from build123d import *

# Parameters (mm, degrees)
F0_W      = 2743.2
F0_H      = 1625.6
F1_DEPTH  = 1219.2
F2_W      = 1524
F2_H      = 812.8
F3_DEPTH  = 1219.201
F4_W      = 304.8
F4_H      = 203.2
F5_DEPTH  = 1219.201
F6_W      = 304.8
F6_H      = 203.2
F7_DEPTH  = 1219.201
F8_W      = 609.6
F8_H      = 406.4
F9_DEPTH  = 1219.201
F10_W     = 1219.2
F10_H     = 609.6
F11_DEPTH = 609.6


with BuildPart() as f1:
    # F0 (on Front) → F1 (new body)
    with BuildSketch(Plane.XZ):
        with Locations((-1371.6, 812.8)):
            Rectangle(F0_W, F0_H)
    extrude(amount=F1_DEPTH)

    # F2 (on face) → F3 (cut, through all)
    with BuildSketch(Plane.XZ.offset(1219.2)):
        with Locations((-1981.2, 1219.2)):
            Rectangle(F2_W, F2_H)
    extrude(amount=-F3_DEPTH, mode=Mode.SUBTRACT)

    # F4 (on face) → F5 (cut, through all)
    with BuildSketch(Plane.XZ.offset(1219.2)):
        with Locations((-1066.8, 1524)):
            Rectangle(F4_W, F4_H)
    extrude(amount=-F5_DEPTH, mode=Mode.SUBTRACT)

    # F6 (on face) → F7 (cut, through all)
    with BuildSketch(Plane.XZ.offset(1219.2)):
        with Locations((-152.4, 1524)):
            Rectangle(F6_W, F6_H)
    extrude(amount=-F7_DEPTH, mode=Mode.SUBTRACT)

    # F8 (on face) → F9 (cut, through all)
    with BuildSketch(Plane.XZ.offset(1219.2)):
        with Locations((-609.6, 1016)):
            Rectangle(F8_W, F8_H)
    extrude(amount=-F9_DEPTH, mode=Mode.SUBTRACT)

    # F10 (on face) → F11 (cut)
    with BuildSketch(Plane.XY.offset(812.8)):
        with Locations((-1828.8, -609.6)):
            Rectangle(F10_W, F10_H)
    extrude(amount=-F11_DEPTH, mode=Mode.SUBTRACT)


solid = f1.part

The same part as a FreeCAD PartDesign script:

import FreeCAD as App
import Part
import Sketcher
from FreeCAD import Vector
Q = App.Units.Quantity


def add_polygon(sketch, points):
    """Adds a closed chain of lines whose ends are joined by coincident constraints."""
    first, n = sketch.GeometryCount, len(points)
    for a, b in zip(points, points[1:] + points[:1]):
        sketch.addGeometry(Part.LineSegment(App.Vector(*a, 0), App.Vector(*b, 0)), False)
    for i in range(n):
        sketch.addConstraint(Sketcher.Constraint("Coincident", first + i, 2, first + (i + 1) % n, 1))

doc = App.newDocument("Part")
body = doc.addObject("PartDesign::Body", "Body")

# Sketch on XZ plane
sketch1 = doc.addObject("Sketcher::SketchObject", "Sketch")
body.addObject(sketch1)
sketch1.AttachmentSupport = (doc.XZ_Plane, [""])
sketch1.MapMode = "FlatFace"
add_polygon(sketch1, [(-2743, 1626), (-2743, 0), (0, 0), (0, 1626)])  # lines 0-3
sketch1.addConstraint([
    Sketcher.Constraint("Vertical", 0),
    Sketcher.Constraint("Horizontal", 1),
    Sketcher.Constraint("Vertical", 2),
    Sketcher.Constraint("Horizontal", 3),
    Sketcher.Constraint("Coincident", 1, 2, -1, 1),
    Sketcher.Constraint("DistanceX", 1, 1, 1, 2, Q("108 in")),
    Sketcher.Constraint("DistanceY", 0, 2, 0, 1, Q("64 in")),
])
pad1 = doc.addObject("PartDesign::Pad", "Pad")
body.addObject(pad1)
pad1.Profile = sketch1
pad1.Length = Q("48 in")

# Sketch on XZ plane
sketch2 = doc.addObject("Sketcher::SketchObject", "Sketch001")
body.addObject(sketch2)
sketch2.AttachmentSupport = (doc.XZ_Plane, [""])
sketch2.MapMode = "FlatFace"
sketch2.AttachmentOffset = App.Placement(Vector(0, 0, 48 * 25.4), App.Rotation())
add_polygon(sketch2, [(-2743, 1626), (-2743, 813), (-1219, 813), (-1219, 1626)])  # lines 0-3
sketch2.addConstraint([
    Sketcher.Constraint("Vertical", 0),
    Sketcher.Constraint("Horizontal", 1),
    Sketcher.Constraint("Vertical", 2),
    Sketcher.Constraint("Horizontal", 3),
    Sketcher.Constraint("DistanceX", 1, 1, 1, 2, Q("60 in")),
    Sketcher.Constraint("DistanceY", 0, 2, 0, 1, Q("32 in")),
    Sketcher.Constraint("DistanceX", 0, 2, -1, 1, Q("108 in")),
    Sketcher.Constraint("DistanceY", -1, 1, 0, 2, Q("32 in")),
])
pocket1 = doc.addObject("PartDesign::Pocket", "Pocket")
body.addObject(pocket1)
pocket1.Profile = sketch2
pocket1.Type = "ThroughAll"

# Sketch on XZ plane
sketch3 = doc.addObject("Sketcher::SketchObject", "Sketch002")
body.addObject(sketch3)
sketch3.AttachmentSupport = (doc.XZ_Plane, [""])
sketch3.MapMode = "FlatFace"
sketch3.AttachmentOffset = App.Placement(Vector(0, 0, 48 * 25.4), App.Rotation())
add_polygon(sketch3, [(-1219, 1626), (-1219, 1422), (-914, 1422), (-914, 1626)])  # lines 0-3
sketch3.addConstraint([
    Sketcher.Constraint("Vertical", 0),
    Sketcher.Constraint("Horizontal", 1),
    Sketcher.Constraint("Vertical", 2),
    Sketcher.Constraint("Horizontal", 3),
    Sketcher.Constraint("DistanceX", 1, 1, 1, 2, Q("12 in")),
    Sketcher.Constraint("DistanceY", 0, 2, 0, 1, Q("8 in")),
    Sketcher.Constraint("DistanceX", 0, 2, -1, 1, Q("48 in")),
    Sketcher.Constraint("DistanceY", -1, 1, 0, 2, Q("56 in")),
])
pocket2 = doc.addObject("PartDesign::Pocket", "Pocket001")
body.addObject(pocket2)
pocket2.Profile = sketch3
pocket2.Type = "ThroughAll"

# Sketch on XZ plane
sketch4 = doc.addObject("Sketcher::SketchObject", "Sketch003")
body.addObject(sketch4)
sketch4.AttachmentSupport = (doc.XZ_Plane, [""])
sketch4.MapMode = "FlatFace"
sketch4.AttachmentOffset = App.Placement(Vector(0, 0, 48 * 25.4), App.Rotation())
add_polygon(sketch4, [(-305, 1626), (-305, 1422), (0, 1422), (0, 1626)])  # lines 0-3
sketch4.addConstraint([
    Sketcher.Constraint("Vertical", 0),
    Sketcher.Constraint("Horizontal", 1),
    Sketcher.Constraint("Vertical", 2),
    Sketcher.Constraint("Horizontal", 3),
    Sketcher.Constraint("PointOnObject", 1, 2, -2),
    Sketcher.Constraint("DistanceX", 1, 1, 1, 2, Q("12 in")),
    Sketcher.Constraint("DistanceY", 0, 2, 0, 1, Q("8 in")),
    Sketcher.Constraint("DistanceY", -1, 1, 0, 2, Q("56 in")),
])
pocket3 = doc.addObject("PartDesign::Pocket", "Pocket002")
body.addObject(pocket3)
pocket3.Profile = sketch4
pocket3.Type = "ThroughAll"

# Sketch on XZ plane
sketch5 = doc.addObject("Sketcher::SketchObject", "Sketch004")
body.addObject(sketch5)
sketch5.AttachmentSupport = (doc.XZ_Plane, [""])
sketch5.MapMode = "FlatFace"
sketch5.AttachmentOffset = App.Placement(Vector(0, 0, 48 * 25.4), App.Rotation())
add_polygon(sketch5, [(-914, 1219), (-914, 813), (-305, 813), (-305, 1219)])  # lines 0-3
sketch5.addConstraint([
    Sketcher.Constraint("Vertical", 0),
    Sketcher.Constraint("Horizontal", 1),
    Sketcher.Constraint("Vertical", 2),
    Sketcher.Constraint("Horizontal", 3),
    Sketcher.Constraint("DistanceX", 1, 1, 1, 2, Q("24 in")),
    Sketcher.Constraint("DistanceY", 0, 2, 0, 1, Q("16 in")),
    Sketcher.Constraint("DistanceX", 0, 2, -1, 1, Q("36 in")),
    Sketcher.Constraint("DistanceY", -1, 1, 0, 2, Q("32 in")),
])
pocket4 = doc.addObject("PartDesign::Pocket", "Pocket003")
body.addObject(pocket4)
pocket4.Profile = sketch5
pocket4.Type = "ThroughAll"

# Sketch on XY plane
sketch6 = doc.addObject("Sketcher::SketchObject", "Sketch005")
body.addObject(sketch6)
sketch6.AttachmentSupport = (doc.XY_Plane, [""])
sketch6.MapMode = "FlatFace"
sketch6.AttachmentOffset = App.Placement(Vector(0, 0, 32 * 25.4), App.Rotation())
add_polygon(sketch6, [(-2438, -305), (-2438, -914), (-1219, -914), (-1219, -305)])  # lines 0-3
sketch6.addConstraint([
    Sketcher.Constraint("Vertical", 0),
    Sketcher.Constraint("Horizontal", 1),
    Sketcher.Constraint("Vertical", 2),
    Sketcher.Constraint("Horizontal", 3),
    Sketcher.Constraint("DistanceX", 1, 1, 1, 2, Q("48 in")),
    Sketcher.Constraint("DistanceY", 0, 2, 0, 1, Q("24 in")),
    Sketcher.Constraint("DistanceX", 0, 2, -1, 1, Q("96 in")),
    Sketcher.Constraint("DistanceY", 0, 2, -1, 1, Q("36 in")),
])
pocket5 = doc.addObject("PartDesign::Pocket", "Pocket004")
body.addObject(pocket5)
pocket5.Profile = sketch6
pocket5.Length = Q("24 in")

doc.recompute()
